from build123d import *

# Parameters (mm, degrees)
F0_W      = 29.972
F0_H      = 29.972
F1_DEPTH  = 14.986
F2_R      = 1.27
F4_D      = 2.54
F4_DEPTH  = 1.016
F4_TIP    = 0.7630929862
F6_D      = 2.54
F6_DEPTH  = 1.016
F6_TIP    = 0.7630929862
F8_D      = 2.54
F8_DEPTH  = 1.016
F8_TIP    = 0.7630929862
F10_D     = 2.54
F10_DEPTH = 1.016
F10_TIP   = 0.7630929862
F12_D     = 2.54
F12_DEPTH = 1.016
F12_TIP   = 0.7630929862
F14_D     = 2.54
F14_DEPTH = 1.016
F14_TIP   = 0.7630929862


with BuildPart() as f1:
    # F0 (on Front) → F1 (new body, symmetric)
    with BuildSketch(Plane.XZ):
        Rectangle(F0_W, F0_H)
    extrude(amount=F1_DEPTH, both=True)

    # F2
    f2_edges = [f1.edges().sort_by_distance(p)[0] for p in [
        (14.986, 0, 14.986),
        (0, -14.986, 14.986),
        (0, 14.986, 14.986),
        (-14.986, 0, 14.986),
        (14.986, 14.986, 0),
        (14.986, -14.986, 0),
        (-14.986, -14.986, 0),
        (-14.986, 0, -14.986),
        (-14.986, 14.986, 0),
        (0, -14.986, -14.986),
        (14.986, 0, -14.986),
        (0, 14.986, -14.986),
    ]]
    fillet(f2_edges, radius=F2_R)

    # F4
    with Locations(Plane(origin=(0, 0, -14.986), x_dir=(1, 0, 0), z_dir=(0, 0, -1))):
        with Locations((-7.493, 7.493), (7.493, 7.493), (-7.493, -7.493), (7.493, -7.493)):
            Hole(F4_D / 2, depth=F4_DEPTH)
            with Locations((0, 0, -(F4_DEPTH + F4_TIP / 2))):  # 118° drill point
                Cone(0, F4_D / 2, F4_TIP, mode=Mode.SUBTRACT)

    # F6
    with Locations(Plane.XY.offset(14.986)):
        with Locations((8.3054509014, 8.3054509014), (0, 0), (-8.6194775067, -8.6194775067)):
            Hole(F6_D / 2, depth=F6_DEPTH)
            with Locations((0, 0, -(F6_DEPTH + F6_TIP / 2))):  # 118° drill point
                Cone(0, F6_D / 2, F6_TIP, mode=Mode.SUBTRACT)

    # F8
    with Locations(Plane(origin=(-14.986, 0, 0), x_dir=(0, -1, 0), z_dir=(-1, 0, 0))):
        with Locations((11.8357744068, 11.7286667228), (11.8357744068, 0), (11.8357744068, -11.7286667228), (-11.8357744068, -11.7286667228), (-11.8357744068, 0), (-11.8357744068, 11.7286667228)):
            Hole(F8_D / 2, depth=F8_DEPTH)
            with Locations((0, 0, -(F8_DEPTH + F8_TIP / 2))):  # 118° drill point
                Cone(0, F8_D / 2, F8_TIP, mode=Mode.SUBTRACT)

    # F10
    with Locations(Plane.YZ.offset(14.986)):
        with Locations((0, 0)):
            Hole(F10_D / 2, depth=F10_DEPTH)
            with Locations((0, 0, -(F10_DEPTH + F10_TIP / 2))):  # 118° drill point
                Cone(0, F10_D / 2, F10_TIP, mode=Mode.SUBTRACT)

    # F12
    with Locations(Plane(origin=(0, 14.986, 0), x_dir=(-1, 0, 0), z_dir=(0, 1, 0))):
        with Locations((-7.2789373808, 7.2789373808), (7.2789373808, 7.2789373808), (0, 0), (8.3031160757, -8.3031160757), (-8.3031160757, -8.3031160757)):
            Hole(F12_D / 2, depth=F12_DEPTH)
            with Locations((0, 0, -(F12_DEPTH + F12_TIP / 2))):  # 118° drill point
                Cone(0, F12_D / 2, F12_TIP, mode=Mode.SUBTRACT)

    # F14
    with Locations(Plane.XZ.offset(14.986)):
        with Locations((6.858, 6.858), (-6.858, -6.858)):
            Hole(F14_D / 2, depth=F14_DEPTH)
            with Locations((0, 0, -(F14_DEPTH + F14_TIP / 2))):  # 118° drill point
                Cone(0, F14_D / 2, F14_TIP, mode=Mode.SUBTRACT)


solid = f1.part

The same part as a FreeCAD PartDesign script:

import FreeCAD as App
import Part
import Sketcher

V = App.Vector
Q = App.Units.Quantity

doc = App.newDocument("Part")
body = doc.addObject("PartDesign::Body", "Body")

# Sketch on XZ plane
sketch1 = doc.addObject("Sketcher::SketchObject", "Sketch")
body.addObject(sketch1)
sketch1.AttachmentSupport = (doc.XZ_Plane, [""])
sketch1.MapMode = "FlatFace"
sketch1.addGeometry([
    Part.LineSegment(V(-15, 15, 0), V(-15, -15, 0)),
    Part.LineSegment(V(-15, -15, 0), V(15, -15, 0)),
    Part.LineSegment(V(15, -15, 0), V(15, 15, 0)),
    Part.LineSegment(V(15, 15, 0), V(-15, 15, 0)),
], False)
sketch1.addConstraint([
    Sketcher.Constraint("Coincident", 0, 2, 1, 1),
    Sketcher.Constraint("Coincident", 1, 2, 2, 1),
    Sketcher.Constraint("Coincident", 2, 2, 3, 1),
    Sketcher.Constraint("Coincident", 3, 2, 0, 1),
    Sketcher.Constraint("Vertical", 0),
    Sketcher.Constraint("Horizontal", 1),
    Sketcher.Constraint("Vertical", 2),
    Sketcher.Constraint("Horizontal", 3),
    Sketcher.Constraint("Symmetric", 0, 2, 2, 2, -1, 1),
    Sketcher.Constraint("Equal", 3, 0),
    Sketcher.Constraint("DistanceX", 1, 1, 1, 2, Q("1.18 in")),
])
pad1 = doc.addObject("PartDesign::Pad", "Pad")
body.addObject(pad1)
pad1.Profile = sketch1
pad1.Length = Q("1.18 in")
pad1.Midplane = True
doc.recompute()

fillet = doc.addObject("PartDesign::Fillet", "Fillet")
body.addObject(fillet)
fillet.Base = (pad1, ["Edge1"])
fillet.UseAllEdges = True
fillet.Radius = Q("0.05 in")

# Sketch on XY plane
sketch2 = doc.addObject("Sketcher::SketchObject", "Sketch001")
body.addObject(sketch2)
sketch2.AttachmentSupport = (doc.XY_Plane, [""])
sketch2.MapMode = "FlatFace"
sketch2.AttachmentOffset = App.Placement(V(0, 0, -0.59 * 25.4), App.Rotation())
sketch2.addGeometry([
    Part.Circle(V(-7.5, -7.5, 0), V(0, 0, 1), 1.3),
    Part.Circle(V(7.5, -7.5, 0), V(0, 0, 1), 1.3),
    Part.Circle(V(-7.5, 7.5, 0), V(0, 0, 1), 1.3),
    Part.Circle(V(7.5, 7.5, 0), V(0, 0, 1), 1.3),
], False)
sketch2.addConstraint([
    Sketcher.Constraint("Equal", 0, 1),
    Sketcher.Constraint("Equal", 1, 2),
    Sketcher.Constraint("Equal", 2, 3),
    Sketcher.Constraint("Symmetric", 1, 3, 2, 3, -1, 1),
    Sketcher.Constraint("Symmetric", 0, 3, 3, 3, -1, 1),
    Sketcher.Constraint("Symmetric", 0, 3, 1, 3, -2),
    Sketcher.Constraint("Diameter", 0, Q("0.1 in")),
    Sketcher.Constraint("DistanceX", 0, 3, 1, 3, Q("0.59 in")),
    Sketcher.Constraint("DistanceY", 0, 3, 2, 3, Q("0.59 in")),
])
doc.recompute()
hole = doc.addObject("PartDesign::Hole", "Hole")
body.addObject(hole)
hole.Profile = sketch2
hole.ThreadType = "None"
hole.Diameter = Q("0.1 in")
hole.DepthType = "Dimension"
hole.Depth = Q("0.04 in")
hole.DrillPoint = "Angled"
hole.DrillPointAngle = 118
hole.Reversed = True

# Sketch on XY plane
sketch3 = doc.addObject("Sketcher::SketchObject", "Sketch002")
body.addObject(sketch3)
sketch3.AttachmentSupport = (doc.XY_Plane, [""])
sketch3.MapMode = "FlatFace"
sketch3.AttachmentOffset = App.Placement(V(0, 0, 0.59 * 25.4), App.Rotation())
sketch3.addGeometry([
    Part.Circle(V(8.3, 8.3, 0), V(0, 0, 1), 1.3),
    Part.Circle(V(0, 0, 0), V(0, 0, 1), 1.3),
    Part.Circle(V(-8.6, -8.6, 0), V(0, 0, 1), 1.3),
], False)
sketch3.addConstraint([
    Sketcher.Constraint("Coincident", 1, 3, -1, 1),
    Sketcher.Constraint("Equal", 0, 1),
    Sketcher.Constraint("Equal", 1, 2),
    Sketcher.Constraint("Diameter", 0, Q("0.1 in")),
    Sketcher.Constraint("DistanceX", -1, 1, 0, 3, Q("8.305451 mm")),
    Sketcher.Constraint("DistanceY", -1, 1, 0, 3, Q("8.305451 mm")),
    Sketcher.Constraint("DistanceX", 2, 3, 0, 3, Q("16.924928 mm")),
    Sketcher.Constraint("DistanceY", 2, 3, 0, 3, Q("16.924928 mm")),
])
doc.recompute()
hole2 = doc.addObject("PartDesign::Hole", "Hole001")
body.addObject(hole2)
hole2.Profile = sketch3
hole2.ThreadType = "None"
hole2.Diameter = Q("0.1 in")
hole2.DepthType = "Dimension"
hole2.Depth = Q("0.04 in")
hole2.DrillPoint = "Angled"
hole2.DrillPointAngle = 118

# Sketch on YZ plane
sketch4 = doc.addObject("Sketcher::SketchObject", "Sketch003")
body.addObject(sketch4)
sketch4.AttachmentSupport = (doc.YZ_Plane, [""])
sketch4.MapMode = "FlatFace"
sketch4.AttachmentOffset = App.Placement(V(0, 0, -0.59 * 25.4), App.Rotation())
sketch4.addGeometry([
    Part.Circle(V(-11.8, 11.7, 0), V(0, 0, 1), 1.3),  # 0
    Part.Circle(V(-11.8, 0, 0), V(0, 0, 1), 1.3),  # 1
    Part.Circle(V(-11.8, -11.7, 0), V(0, 0, 1), 1.3),  # 2
    Part.Circle(V(11.8, -11.7, 0), V(0, 0, 1), 1.3),  # 3
    Part.Circle(V(11.8, 0, 0), V(0, 0, 1), 1.3),  # 4
    Part.Circle(V(11.8, 11.7, 0), V(0, 0, 1), 1.3),  # 5
], False)
sketch4.addConstraint([
    Sketcher.Constraint("Equal", 0, 1),
    Sketcher.Constraint("Equal", 1, 2),
    Sketcher.Constraint("Equal", 2, 3),
    Sketcher.Constraint("Equal", 3, 4),
    Sketcher.Constraint("Equal", 4, 5),
    Sketcher.Constraint("Symmetric", 0, 3, 3, 3, -1, 1),
    Sketcher.Constraint("Symmetric", 1, 3, 4, 3, -1, 1),
    Sketcher.Constraint("Symmetric", 2, 3, 5, 3, -1, 1),
    Sketcher.Constraint("Symmetric", 2, 3, 3, 3, -2),
    Sketcher.Constraint("PointOnObject", 1, 3, -1),
    Sketcher.Constraint("Vertical", 0, 3, 1, 3),
    Sketcher.Constraint("Diameter", 0, Q("0.1 in")),
    Sketcher.Constraint("DistanceX", 2, 3, 3, 3, Q("23.671549 mm")),
    Sketcher.Constraint("DistanceY", -1, 1, 0, 3, Q("11.728667 mm")),
])
doc.recompute()
hole3 = doc.addObject("PartDesign::Hole", "Hole002")
body.addObject(hole3)
hole3.Profile = sketch4
hole3.ThreadType = "None"
hole3.Diameter = Q("0.1 in")
hole3.DepthType = "Dimension"
hole3.Depth = Q("0.04 in")
hole3.DrillPoint = "Angled"
hole3.DrillPointAngle = 118
hole3.Reversed = True

# Sketch on YZ plane
sketch5 = doc.addObject("Sketcher::SketchObject", "Sketch004")
body.addObject(sketch5)
sketch5.AttachmentSupport = (doc.YZ_Plane, [""])
sketch5.MapMode = "FlatFace"
sketch5.AttachmentOffset = App.Placement(V(0, 0, 0.59 * 25.4), App.Rotation())
sketch5.addGeometry(Part.Circle(V(0, 0, 0), V(0, 0, 1), 1.3), False)
sketch5.addConstraint([
    Sketcher.Constraint("Coincident", 0, 3, -1, 1),
    Sketcher.Constraint("Diameter", 0, Q("0.1 in")),
])
doc.recompute()
hole4 = doc.addObject("PartDesign::Hole", "Hole003")
body.addObject(hole4)
hole4.Profile = sketch5
hole4.ThreadType = "None"
hole4.Diameter = Q("0.1 in")
hole4.DepthType = "Dimension"
hole4.Depth = Q("0.04 in")
hole4.DrillPoint = "Angled"
hole4.DrillPointAngle = 118

# Sketch on XZ plane
sketch6 = doc.addObject("Sketcher::SketchObject", "Sketch005")
body.addObject(sketch6)
sketch6.AttachmentSupport = (doc.XZ_Plane, [""])
sketch6.MapMode = "FlatFace"
sketch6.AttachmentOffset = App.Placement(V(0, 0, -0.59 * 25.4), App.Rotation())
sketch6.addGeometry([
    Part.Circle(V(7.3, 7.3, 0), V(0, 0, 1), 1.3),  # 0
    Part.Circle(V(-7.3, 7.3, 0), V(0, 0, 1), 1.3),  # 1
    Part.Circle(V(0, 0, 0), V(0, 0, 1), 1.3),  # 2
    Part.Circle(V(-8.3, -8.3, 0), V(0, 0, 1), 1.3),  # 3
    Part.Circle(V(8.3, -8.3, 0), V(0, 0, 1), 1.3),  # 4
], False)
sketch6.addConstraint([
    Sketcher.Constraint("Coincident", 2, 3, -1, 1),
    Sketcher.Constraint("Equal", 0, 1),
    Sketcher.Constraint("Equal", 1, 2),
    Sketcher.Constraint("Equal", 2, 3),
    Sketcher.Constraint("Equal", 3, 4),
    Sketcher.Constraint("Symmetric", 0, 3, 1, 3, -2),
    Sketcher.Constraint("Symmetric", 3, 3, 4, 3, -2),
    Sketcher.Constraint("Diameter", 0, Q("0.1 in")),
    Sketcher.Constraint("DistanceX", 3, 3, 1, 3, Q("1.024179 mm")),
    Sketcher.Constraint("DistanceX", -1, 1, 0, 3, Q("7.278937 mm")),
    Sketcher.Constraint("DistanceY", -1, 1, 0, 3, Q("7.278937 mm")),
    Sketcher.Constraint("DistanceY", 3, 3, -1, 1, Q("8.303116 mm")),
])
doc.recompute()
hole5 = doc.addObject("PartDesign::Hole", "Hole004")
body.addObject(hole5)
hole5.Profile = sketch6
hole5.ThreadType = "None"
hole5.Diameter = Q("0.1 in")
hole5.DepthType = "Dimension"
hole5.Depth = Q("0.04 in")
hole5.DrillPoint = "Angled"
hole5.DrillPointAngle = 118
hole5.Reversed = True

# Sketch on XZ plane
sketch7 = doc.addObject("Sketcher::SketchObject", "Sketch006")
body.addObject(sketch7)
sketch7.AttachmentSupport = (doc.XZ_Plane, [""])
sketch7.MapMode = "FlatFace"
sketch7.AttachmentOffset = App.Placement(V(0, 0, 0.59 * 25.4), App.Rotation())
sketch7.addGeometry([
    Part.Circle(V(6.9, 6.9, 0), V(0, 0, 1), 1.3),
    Part.Circle(V(-6.9, -6.9, 0), V(0, 0, 1), 1.3),
], False)
sketch7.addConstraint([
    Sketcher.Constraint("Equal", 0, 1),
    Sketcher.Constraint("Symmetric", 0, 3, 1, 3, -1, 1),
    Sketcher.Constraint("Diameter", 0, Q("0.1 in")),
    Sketcher.Constraint("DistanceX", -1, 1, 0, 3, Q("0.27 in")),
    Sketcher.Constraint("DistanceY", -1, 1, 0, 3, Q("0.27 in")),
])
doc.recompute()
hole6 = doc.addObject("PartDesign::Hole", "Hole005")
body.addObject(hole6)
hole6.Profile = sketch7
hole6.ThreadType = "None"
hole6.Diameter = Q("0.1 in")
hole6.DepthType = "Dimension"
hole6.Depth = Q("0.04 in")
hole6.DrillPoint = "Angled"
hole6.DrillPointAngle = 118

doc.recompute()
